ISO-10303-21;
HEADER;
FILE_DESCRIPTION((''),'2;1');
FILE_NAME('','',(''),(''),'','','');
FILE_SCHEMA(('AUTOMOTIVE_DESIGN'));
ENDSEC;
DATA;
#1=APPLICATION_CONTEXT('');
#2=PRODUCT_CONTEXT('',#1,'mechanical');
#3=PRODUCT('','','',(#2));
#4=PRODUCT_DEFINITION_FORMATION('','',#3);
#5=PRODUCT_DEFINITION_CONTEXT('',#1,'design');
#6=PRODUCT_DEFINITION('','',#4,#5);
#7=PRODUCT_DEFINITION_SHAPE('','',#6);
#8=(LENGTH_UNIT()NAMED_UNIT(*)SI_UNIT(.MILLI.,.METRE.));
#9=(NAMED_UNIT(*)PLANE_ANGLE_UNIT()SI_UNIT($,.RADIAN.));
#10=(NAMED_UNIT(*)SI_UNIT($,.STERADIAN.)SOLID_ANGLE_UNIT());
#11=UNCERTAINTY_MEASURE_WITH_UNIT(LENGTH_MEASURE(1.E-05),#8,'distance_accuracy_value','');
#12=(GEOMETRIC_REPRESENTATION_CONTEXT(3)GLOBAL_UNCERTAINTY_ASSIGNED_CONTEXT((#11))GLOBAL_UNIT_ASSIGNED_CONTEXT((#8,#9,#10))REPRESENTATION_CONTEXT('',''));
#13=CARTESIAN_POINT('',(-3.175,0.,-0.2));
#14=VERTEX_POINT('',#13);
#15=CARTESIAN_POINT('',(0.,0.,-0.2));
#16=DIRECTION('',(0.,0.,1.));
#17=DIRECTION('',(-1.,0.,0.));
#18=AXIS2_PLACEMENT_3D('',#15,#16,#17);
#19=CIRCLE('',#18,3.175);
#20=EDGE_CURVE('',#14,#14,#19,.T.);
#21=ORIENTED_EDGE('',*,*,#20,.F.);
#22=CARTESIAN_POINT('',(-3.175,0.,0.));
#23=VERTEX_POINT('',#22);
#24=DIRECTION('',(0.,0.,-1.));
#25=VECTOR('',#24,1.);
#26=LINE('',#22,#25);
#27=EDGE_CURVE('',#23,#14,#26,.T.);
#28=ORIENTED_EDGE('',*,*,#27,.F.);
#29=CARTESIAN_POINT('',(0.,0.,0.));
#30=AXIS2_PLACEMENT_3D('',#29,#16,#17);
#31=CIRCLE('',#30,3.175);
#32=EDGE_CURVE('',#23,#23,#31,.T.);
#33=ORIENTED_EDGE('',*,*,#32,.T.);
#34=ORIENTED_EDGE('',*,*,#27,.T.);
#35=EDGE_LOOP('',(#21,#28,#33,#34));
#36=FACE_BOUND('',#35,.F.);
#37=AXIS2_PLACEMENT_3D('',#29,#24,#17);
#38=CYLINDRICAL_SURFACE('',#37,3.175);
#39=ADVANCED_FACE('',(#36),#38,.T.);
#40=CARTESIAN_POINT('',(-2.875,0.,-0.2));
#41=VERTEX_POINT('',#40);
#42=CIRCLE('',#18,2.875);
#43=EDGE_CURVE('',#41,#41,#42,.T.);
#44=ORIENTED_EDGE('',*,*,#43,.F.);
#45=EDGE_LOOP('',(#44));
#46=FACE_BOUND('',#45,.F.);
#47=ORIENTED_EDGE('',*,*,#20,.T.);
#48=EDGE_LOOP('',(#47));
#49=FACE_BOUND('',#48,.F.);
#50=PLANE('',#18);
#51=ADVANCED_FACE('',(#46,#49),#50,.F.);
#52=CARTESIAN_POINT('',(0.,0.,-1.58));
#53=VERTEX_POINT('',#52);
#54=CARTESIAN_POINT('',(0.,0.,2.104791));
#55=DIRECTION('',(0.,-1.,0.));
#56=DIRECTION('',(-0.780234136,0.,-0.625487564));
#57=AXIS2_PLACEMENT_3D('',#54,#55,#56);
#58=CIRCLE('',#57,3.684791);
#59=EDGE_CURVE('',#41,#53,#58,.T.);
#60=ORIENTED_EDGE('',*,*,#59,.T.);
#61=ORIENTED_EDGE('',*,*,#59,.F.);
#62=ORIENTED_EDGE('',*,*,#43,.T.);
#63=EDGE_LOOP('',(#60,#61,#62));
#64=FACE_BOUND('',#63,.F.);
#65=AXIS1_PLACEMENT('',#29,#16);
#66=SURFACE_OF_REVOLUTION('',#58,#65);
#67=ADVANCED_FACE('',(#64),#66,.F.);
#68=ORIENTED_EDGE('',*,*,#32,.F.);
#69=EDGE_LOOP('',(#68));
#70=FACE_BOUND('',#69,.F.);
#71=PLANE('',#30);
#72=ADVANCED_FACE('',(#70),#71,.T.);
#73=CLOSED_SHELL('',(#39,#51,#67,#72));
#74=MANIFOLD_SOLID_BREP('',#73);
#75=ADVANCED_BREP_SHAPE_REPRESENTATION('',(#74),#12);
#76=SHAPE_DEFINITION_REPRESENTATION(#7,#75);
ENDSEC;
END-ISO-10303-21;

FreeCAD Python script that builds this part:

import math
import FreeCAD as App
import Part
import Sketcher
from FreeCAD import Vector

doc = App.newDocument("Part")
body = doc.addObject("PartDesign::Body", "Body")

# Sketch on XZ plane
sketch1 = body.newObject("Sketcher::SketchObject", "Sketch")
sketch1.AttachmentSupport = (doc.getObject("XZ_Plane"), [""])
sketch1.MapMode = "FlatFace"
sketch1.addGeometry(Part.LineSegment(Vector(0, 0, 0), Vector(-3.17, 0, 0)), False)
sketch1.addGeometry(Part.LineSegment(Vector(-3.17, 0, 0), Vector(-3.17, -0.2, 0)), False)
sketch1.addGeometry(Part.LineSegment(Vector(-3.17, -0.2, 0), Vector(-2.88, -0.2, 0)), False)
sketch1.addGeometry(Part.ArcOfCircle(Part.Circle(Vector(0, 2.1, 0), Vector(0, 0, 1), 3.68), math.radians(-141), math.radians(-90)), False)
sketch1.addGeometry(Part.LineSegment(Vector(0, -1.58, 0), Vector(0, 0, 0)), False)
sketch1.addConstraint(Sketcher.Constraint("Coincident", 0, 2, 1, 1))
sketch1.addConstraint(Sketcher.Constraint("Coincident", 1, 2, 2, 1))
sketch1.addConstraint(Sketcher.Constraint("Coincident", 2, 2, 3, 1))
sketch1.addConstraint(Sketcher.Constraint("Coincident", 3, 2, 4, 1))
sketch1.addConstraint(Sketcher.Constraint("Coincident", 4, 2, 0, 1))
sketch1.addConstraint(Sketcher.Constraint("Horizontal", 0))
sketch1.addConstraint(Sketcher.Constraint("Vertical", 1))
sketch1.addConstraint(Sketcher.Constraint("Horizontal", 2))
sketch1.addConstraint(Sketcher.Constraint("Vertical", 4))
sketch1.addConstraint(Sketcher.Constraint("Coincident", 4, 2, -1, 1))
sketch1.addConstraint(Sketcher.Constraint("PointOnObject", 3, 3, -2))
sketch1.addConstraint(Sketcher.Constraint("DistanceX", 2, 1, 2, 2, 0.3))
sketch1.addConstraint(Sketcher.Constraint("DistanceY", 1, 2, 1, 1, 0.2))
sketch1.addConstraint(Sketcher.Constraint("DistanceY", 4, 1, 4, 2, 1.58))
sketch1.addConstraint(Sketcher.Constraint("DistanceX", 0, 2, 0, 1, 3.175))
revolution = body.newObject("PartDesign::Revolution", "Revolution")
revolution.Profile = sketch1
revolution.ReferenceAxis = (sketch1, ["V_Axis"])
revolution.Angle = 360

doc.recompute()
